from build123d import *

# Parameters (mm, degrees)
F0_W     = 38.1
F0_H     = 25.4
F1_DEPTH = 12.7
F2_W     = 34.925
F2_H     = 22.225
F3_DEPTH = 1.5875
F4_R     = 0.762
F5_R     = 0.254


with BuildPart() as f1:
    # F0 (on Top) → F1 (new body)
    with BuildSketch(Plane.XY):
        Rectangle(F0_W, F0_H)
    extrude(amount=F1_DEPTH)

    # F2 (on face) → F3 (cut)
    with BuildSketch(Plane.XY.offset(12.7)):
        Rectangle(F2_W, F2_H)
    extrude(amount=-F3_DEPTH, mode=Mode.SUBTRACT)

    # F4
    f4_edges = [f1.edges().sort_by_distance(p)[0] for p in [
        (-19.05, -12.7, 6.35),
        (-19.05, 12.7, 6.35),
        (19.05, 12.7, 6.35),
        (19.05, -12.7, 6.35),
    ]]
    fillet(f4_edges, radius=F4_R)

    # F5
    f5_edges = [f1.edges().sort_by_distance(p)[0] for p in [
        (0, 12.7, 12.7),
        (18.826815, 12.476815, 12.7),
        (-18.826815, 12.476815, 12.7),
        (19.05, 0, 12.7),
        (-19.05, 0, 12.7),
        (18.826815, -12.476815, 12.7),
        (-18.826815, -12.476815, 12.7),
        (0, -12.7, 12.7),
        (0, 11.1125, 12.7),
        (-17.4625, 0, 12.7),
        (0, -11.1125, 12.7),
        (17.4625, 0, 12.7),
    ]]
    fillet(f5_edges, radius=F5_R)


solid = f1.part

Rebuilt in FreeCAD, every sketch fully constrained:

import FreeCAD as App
import Part
import Sketcher

V = App.Vector
Q = App.Units.Quantity


def edges_at(feature, points):
    """Names of the edges that pass closest to the given points."""
    edges = feature.Shape.Edges
    near = lambda p: min(range(len(edges)), key=lambda i: edges[i].distToShape(Part.Vertex(*p))[0])
    return sorted({f"Edge{near(p) + 1}" for p in points})


def add_polygon(sketch, points):
    """Adds a closed chain of lines whose ends are joined by coincident constraints."""
    first, n = sketch.GeometryCount, len(points)
    for a, b in zip(points, points[1:] + points[:1]):
        sketch.addGeometry(Part.LineSegment(App.Vector(*a, 0), App.Vector(*b, 0)), False)
    for i in range(n):
        sketch.addConstraint(Sketcher.Constraint("Coincident", first + i, 2, first + (i + 1) % n, 1))

doc = App.newDocument("Part")
body = doc.addObject("PartDesign::Body", "Body")

# Sketch on XY plane
sketch1 = body.newObject("Sketcher::SketchObject", "Sketch")
sketch1.AttachmentSupport = (doc.getObject("XY_Plane"), [""])
sketch1.MapMode = "FlatFace"
add_polygon(sketch1, [(-19.05, 12.7), (-19.05, -12.7), (19.05, -12.7), (19.05, 12.7)])  # lines 0-3
sketch1.addConstraint([
    Sketcher.Constraint("Vertical", 0),
    Sketcher.Constraint("Horizontal", 1),
    Sketcher.Constraint("Vertical", 2),
    Sketcher.Constraint("Horizontal", 3),
    Sketcher.Constraint("Symmetric", 0, 2, 2, 2, -1, 1),
    Sketcher.Constraint("DistanceY", 0, 2, 0, 1, Q("1 in")),
    Sketcher.Constraint("DistanceX", 1, 1, 1, 2, Q("1.5 in")),
])
pad1 = body.newObject("PartDesign::Pad", "Pad")
pad1.Profile = sketch1
pad1.Length = Q("0.5 in")

# Sketch on XY plane
sketch2 = body.newObject("Sketcher::SketchObject", "Sketch001")
sketch2.AttachmentSupport = (doc.getObject("XY_Plane"), [""])
sketch2.MapMode = "FlatFace"
sketch2.AttachmentOffset = App.Placement(V(0, 0, 0.5 * 25.4), App.Rotation())
add_polygon(sketch2, [(-17.4625, 11.1125), (-17.4625, -11.1125), (17.4625, -11.1125), (17.4625, 11.1125)])  # lines 0-3
sketch2.addConstraint([
    Sketcher.Constraint("Vertical", 0),
    Sketcher.Constraint("Horizontal", 1),
    Sketcher.Constraint("Vertical", 2),
    Sketcher.Constraint("Horizontal", 3),
    Sketcher.Constraint("Symmetric", 0, 2, 2, 2, -1, 1),
    Sketcher.Constraint("DistanceX", 1, 1, 1, 2, Q("1.375 in")),
    Sketcher.Constraint("DistanceY", 0, 2, 0, 1, Q("0.875 in")),
])
pocket1 = body.newObject("PartDesign::Pocket", "Pocket")
pocket1.Profile = sketch2
pocket1.Length = Q("0.0625 in")
doc.recompute()

fillet = body.newObject("PartDesign::Fillet", "Fillet")
fillet.Base = (pocket1, edges_at(pocket1, [
    (-19.05, -12.7, 6.35),
    (-19.05, 12.7, 6.35),
    (19.05, 12.7, 6.35),
    (19.05, -12.7, 6.35),
]))
fillet.Radius = Q("0.03 in")
doc.recompute()

fillet2 = body.newObject("PartDesign::Fillet", "Fillet001")
fillet2.Base = (fillet, edges_at(fillet, [
    (0, 12.7, 12.7),
    (18.827, 12.477, 12.7),
    (-18.827, 12.477, 12.7),
    (19.05, 0, 12.7),
    (-19.05, 0, 12.7),
    (18.827, -12.477, 12.7),
    (-18.827, -12.477, 12.7),
    (0, -12.7, 12.7),
    (0, 11.113, 12.7),
    (-17.462, 0, 12.7),
    (0, -11.113, 12.7),
    (17.462, 0, 12.7),
]))
fillet2.Radius = Q("0.01 in")

doc.recompute()
